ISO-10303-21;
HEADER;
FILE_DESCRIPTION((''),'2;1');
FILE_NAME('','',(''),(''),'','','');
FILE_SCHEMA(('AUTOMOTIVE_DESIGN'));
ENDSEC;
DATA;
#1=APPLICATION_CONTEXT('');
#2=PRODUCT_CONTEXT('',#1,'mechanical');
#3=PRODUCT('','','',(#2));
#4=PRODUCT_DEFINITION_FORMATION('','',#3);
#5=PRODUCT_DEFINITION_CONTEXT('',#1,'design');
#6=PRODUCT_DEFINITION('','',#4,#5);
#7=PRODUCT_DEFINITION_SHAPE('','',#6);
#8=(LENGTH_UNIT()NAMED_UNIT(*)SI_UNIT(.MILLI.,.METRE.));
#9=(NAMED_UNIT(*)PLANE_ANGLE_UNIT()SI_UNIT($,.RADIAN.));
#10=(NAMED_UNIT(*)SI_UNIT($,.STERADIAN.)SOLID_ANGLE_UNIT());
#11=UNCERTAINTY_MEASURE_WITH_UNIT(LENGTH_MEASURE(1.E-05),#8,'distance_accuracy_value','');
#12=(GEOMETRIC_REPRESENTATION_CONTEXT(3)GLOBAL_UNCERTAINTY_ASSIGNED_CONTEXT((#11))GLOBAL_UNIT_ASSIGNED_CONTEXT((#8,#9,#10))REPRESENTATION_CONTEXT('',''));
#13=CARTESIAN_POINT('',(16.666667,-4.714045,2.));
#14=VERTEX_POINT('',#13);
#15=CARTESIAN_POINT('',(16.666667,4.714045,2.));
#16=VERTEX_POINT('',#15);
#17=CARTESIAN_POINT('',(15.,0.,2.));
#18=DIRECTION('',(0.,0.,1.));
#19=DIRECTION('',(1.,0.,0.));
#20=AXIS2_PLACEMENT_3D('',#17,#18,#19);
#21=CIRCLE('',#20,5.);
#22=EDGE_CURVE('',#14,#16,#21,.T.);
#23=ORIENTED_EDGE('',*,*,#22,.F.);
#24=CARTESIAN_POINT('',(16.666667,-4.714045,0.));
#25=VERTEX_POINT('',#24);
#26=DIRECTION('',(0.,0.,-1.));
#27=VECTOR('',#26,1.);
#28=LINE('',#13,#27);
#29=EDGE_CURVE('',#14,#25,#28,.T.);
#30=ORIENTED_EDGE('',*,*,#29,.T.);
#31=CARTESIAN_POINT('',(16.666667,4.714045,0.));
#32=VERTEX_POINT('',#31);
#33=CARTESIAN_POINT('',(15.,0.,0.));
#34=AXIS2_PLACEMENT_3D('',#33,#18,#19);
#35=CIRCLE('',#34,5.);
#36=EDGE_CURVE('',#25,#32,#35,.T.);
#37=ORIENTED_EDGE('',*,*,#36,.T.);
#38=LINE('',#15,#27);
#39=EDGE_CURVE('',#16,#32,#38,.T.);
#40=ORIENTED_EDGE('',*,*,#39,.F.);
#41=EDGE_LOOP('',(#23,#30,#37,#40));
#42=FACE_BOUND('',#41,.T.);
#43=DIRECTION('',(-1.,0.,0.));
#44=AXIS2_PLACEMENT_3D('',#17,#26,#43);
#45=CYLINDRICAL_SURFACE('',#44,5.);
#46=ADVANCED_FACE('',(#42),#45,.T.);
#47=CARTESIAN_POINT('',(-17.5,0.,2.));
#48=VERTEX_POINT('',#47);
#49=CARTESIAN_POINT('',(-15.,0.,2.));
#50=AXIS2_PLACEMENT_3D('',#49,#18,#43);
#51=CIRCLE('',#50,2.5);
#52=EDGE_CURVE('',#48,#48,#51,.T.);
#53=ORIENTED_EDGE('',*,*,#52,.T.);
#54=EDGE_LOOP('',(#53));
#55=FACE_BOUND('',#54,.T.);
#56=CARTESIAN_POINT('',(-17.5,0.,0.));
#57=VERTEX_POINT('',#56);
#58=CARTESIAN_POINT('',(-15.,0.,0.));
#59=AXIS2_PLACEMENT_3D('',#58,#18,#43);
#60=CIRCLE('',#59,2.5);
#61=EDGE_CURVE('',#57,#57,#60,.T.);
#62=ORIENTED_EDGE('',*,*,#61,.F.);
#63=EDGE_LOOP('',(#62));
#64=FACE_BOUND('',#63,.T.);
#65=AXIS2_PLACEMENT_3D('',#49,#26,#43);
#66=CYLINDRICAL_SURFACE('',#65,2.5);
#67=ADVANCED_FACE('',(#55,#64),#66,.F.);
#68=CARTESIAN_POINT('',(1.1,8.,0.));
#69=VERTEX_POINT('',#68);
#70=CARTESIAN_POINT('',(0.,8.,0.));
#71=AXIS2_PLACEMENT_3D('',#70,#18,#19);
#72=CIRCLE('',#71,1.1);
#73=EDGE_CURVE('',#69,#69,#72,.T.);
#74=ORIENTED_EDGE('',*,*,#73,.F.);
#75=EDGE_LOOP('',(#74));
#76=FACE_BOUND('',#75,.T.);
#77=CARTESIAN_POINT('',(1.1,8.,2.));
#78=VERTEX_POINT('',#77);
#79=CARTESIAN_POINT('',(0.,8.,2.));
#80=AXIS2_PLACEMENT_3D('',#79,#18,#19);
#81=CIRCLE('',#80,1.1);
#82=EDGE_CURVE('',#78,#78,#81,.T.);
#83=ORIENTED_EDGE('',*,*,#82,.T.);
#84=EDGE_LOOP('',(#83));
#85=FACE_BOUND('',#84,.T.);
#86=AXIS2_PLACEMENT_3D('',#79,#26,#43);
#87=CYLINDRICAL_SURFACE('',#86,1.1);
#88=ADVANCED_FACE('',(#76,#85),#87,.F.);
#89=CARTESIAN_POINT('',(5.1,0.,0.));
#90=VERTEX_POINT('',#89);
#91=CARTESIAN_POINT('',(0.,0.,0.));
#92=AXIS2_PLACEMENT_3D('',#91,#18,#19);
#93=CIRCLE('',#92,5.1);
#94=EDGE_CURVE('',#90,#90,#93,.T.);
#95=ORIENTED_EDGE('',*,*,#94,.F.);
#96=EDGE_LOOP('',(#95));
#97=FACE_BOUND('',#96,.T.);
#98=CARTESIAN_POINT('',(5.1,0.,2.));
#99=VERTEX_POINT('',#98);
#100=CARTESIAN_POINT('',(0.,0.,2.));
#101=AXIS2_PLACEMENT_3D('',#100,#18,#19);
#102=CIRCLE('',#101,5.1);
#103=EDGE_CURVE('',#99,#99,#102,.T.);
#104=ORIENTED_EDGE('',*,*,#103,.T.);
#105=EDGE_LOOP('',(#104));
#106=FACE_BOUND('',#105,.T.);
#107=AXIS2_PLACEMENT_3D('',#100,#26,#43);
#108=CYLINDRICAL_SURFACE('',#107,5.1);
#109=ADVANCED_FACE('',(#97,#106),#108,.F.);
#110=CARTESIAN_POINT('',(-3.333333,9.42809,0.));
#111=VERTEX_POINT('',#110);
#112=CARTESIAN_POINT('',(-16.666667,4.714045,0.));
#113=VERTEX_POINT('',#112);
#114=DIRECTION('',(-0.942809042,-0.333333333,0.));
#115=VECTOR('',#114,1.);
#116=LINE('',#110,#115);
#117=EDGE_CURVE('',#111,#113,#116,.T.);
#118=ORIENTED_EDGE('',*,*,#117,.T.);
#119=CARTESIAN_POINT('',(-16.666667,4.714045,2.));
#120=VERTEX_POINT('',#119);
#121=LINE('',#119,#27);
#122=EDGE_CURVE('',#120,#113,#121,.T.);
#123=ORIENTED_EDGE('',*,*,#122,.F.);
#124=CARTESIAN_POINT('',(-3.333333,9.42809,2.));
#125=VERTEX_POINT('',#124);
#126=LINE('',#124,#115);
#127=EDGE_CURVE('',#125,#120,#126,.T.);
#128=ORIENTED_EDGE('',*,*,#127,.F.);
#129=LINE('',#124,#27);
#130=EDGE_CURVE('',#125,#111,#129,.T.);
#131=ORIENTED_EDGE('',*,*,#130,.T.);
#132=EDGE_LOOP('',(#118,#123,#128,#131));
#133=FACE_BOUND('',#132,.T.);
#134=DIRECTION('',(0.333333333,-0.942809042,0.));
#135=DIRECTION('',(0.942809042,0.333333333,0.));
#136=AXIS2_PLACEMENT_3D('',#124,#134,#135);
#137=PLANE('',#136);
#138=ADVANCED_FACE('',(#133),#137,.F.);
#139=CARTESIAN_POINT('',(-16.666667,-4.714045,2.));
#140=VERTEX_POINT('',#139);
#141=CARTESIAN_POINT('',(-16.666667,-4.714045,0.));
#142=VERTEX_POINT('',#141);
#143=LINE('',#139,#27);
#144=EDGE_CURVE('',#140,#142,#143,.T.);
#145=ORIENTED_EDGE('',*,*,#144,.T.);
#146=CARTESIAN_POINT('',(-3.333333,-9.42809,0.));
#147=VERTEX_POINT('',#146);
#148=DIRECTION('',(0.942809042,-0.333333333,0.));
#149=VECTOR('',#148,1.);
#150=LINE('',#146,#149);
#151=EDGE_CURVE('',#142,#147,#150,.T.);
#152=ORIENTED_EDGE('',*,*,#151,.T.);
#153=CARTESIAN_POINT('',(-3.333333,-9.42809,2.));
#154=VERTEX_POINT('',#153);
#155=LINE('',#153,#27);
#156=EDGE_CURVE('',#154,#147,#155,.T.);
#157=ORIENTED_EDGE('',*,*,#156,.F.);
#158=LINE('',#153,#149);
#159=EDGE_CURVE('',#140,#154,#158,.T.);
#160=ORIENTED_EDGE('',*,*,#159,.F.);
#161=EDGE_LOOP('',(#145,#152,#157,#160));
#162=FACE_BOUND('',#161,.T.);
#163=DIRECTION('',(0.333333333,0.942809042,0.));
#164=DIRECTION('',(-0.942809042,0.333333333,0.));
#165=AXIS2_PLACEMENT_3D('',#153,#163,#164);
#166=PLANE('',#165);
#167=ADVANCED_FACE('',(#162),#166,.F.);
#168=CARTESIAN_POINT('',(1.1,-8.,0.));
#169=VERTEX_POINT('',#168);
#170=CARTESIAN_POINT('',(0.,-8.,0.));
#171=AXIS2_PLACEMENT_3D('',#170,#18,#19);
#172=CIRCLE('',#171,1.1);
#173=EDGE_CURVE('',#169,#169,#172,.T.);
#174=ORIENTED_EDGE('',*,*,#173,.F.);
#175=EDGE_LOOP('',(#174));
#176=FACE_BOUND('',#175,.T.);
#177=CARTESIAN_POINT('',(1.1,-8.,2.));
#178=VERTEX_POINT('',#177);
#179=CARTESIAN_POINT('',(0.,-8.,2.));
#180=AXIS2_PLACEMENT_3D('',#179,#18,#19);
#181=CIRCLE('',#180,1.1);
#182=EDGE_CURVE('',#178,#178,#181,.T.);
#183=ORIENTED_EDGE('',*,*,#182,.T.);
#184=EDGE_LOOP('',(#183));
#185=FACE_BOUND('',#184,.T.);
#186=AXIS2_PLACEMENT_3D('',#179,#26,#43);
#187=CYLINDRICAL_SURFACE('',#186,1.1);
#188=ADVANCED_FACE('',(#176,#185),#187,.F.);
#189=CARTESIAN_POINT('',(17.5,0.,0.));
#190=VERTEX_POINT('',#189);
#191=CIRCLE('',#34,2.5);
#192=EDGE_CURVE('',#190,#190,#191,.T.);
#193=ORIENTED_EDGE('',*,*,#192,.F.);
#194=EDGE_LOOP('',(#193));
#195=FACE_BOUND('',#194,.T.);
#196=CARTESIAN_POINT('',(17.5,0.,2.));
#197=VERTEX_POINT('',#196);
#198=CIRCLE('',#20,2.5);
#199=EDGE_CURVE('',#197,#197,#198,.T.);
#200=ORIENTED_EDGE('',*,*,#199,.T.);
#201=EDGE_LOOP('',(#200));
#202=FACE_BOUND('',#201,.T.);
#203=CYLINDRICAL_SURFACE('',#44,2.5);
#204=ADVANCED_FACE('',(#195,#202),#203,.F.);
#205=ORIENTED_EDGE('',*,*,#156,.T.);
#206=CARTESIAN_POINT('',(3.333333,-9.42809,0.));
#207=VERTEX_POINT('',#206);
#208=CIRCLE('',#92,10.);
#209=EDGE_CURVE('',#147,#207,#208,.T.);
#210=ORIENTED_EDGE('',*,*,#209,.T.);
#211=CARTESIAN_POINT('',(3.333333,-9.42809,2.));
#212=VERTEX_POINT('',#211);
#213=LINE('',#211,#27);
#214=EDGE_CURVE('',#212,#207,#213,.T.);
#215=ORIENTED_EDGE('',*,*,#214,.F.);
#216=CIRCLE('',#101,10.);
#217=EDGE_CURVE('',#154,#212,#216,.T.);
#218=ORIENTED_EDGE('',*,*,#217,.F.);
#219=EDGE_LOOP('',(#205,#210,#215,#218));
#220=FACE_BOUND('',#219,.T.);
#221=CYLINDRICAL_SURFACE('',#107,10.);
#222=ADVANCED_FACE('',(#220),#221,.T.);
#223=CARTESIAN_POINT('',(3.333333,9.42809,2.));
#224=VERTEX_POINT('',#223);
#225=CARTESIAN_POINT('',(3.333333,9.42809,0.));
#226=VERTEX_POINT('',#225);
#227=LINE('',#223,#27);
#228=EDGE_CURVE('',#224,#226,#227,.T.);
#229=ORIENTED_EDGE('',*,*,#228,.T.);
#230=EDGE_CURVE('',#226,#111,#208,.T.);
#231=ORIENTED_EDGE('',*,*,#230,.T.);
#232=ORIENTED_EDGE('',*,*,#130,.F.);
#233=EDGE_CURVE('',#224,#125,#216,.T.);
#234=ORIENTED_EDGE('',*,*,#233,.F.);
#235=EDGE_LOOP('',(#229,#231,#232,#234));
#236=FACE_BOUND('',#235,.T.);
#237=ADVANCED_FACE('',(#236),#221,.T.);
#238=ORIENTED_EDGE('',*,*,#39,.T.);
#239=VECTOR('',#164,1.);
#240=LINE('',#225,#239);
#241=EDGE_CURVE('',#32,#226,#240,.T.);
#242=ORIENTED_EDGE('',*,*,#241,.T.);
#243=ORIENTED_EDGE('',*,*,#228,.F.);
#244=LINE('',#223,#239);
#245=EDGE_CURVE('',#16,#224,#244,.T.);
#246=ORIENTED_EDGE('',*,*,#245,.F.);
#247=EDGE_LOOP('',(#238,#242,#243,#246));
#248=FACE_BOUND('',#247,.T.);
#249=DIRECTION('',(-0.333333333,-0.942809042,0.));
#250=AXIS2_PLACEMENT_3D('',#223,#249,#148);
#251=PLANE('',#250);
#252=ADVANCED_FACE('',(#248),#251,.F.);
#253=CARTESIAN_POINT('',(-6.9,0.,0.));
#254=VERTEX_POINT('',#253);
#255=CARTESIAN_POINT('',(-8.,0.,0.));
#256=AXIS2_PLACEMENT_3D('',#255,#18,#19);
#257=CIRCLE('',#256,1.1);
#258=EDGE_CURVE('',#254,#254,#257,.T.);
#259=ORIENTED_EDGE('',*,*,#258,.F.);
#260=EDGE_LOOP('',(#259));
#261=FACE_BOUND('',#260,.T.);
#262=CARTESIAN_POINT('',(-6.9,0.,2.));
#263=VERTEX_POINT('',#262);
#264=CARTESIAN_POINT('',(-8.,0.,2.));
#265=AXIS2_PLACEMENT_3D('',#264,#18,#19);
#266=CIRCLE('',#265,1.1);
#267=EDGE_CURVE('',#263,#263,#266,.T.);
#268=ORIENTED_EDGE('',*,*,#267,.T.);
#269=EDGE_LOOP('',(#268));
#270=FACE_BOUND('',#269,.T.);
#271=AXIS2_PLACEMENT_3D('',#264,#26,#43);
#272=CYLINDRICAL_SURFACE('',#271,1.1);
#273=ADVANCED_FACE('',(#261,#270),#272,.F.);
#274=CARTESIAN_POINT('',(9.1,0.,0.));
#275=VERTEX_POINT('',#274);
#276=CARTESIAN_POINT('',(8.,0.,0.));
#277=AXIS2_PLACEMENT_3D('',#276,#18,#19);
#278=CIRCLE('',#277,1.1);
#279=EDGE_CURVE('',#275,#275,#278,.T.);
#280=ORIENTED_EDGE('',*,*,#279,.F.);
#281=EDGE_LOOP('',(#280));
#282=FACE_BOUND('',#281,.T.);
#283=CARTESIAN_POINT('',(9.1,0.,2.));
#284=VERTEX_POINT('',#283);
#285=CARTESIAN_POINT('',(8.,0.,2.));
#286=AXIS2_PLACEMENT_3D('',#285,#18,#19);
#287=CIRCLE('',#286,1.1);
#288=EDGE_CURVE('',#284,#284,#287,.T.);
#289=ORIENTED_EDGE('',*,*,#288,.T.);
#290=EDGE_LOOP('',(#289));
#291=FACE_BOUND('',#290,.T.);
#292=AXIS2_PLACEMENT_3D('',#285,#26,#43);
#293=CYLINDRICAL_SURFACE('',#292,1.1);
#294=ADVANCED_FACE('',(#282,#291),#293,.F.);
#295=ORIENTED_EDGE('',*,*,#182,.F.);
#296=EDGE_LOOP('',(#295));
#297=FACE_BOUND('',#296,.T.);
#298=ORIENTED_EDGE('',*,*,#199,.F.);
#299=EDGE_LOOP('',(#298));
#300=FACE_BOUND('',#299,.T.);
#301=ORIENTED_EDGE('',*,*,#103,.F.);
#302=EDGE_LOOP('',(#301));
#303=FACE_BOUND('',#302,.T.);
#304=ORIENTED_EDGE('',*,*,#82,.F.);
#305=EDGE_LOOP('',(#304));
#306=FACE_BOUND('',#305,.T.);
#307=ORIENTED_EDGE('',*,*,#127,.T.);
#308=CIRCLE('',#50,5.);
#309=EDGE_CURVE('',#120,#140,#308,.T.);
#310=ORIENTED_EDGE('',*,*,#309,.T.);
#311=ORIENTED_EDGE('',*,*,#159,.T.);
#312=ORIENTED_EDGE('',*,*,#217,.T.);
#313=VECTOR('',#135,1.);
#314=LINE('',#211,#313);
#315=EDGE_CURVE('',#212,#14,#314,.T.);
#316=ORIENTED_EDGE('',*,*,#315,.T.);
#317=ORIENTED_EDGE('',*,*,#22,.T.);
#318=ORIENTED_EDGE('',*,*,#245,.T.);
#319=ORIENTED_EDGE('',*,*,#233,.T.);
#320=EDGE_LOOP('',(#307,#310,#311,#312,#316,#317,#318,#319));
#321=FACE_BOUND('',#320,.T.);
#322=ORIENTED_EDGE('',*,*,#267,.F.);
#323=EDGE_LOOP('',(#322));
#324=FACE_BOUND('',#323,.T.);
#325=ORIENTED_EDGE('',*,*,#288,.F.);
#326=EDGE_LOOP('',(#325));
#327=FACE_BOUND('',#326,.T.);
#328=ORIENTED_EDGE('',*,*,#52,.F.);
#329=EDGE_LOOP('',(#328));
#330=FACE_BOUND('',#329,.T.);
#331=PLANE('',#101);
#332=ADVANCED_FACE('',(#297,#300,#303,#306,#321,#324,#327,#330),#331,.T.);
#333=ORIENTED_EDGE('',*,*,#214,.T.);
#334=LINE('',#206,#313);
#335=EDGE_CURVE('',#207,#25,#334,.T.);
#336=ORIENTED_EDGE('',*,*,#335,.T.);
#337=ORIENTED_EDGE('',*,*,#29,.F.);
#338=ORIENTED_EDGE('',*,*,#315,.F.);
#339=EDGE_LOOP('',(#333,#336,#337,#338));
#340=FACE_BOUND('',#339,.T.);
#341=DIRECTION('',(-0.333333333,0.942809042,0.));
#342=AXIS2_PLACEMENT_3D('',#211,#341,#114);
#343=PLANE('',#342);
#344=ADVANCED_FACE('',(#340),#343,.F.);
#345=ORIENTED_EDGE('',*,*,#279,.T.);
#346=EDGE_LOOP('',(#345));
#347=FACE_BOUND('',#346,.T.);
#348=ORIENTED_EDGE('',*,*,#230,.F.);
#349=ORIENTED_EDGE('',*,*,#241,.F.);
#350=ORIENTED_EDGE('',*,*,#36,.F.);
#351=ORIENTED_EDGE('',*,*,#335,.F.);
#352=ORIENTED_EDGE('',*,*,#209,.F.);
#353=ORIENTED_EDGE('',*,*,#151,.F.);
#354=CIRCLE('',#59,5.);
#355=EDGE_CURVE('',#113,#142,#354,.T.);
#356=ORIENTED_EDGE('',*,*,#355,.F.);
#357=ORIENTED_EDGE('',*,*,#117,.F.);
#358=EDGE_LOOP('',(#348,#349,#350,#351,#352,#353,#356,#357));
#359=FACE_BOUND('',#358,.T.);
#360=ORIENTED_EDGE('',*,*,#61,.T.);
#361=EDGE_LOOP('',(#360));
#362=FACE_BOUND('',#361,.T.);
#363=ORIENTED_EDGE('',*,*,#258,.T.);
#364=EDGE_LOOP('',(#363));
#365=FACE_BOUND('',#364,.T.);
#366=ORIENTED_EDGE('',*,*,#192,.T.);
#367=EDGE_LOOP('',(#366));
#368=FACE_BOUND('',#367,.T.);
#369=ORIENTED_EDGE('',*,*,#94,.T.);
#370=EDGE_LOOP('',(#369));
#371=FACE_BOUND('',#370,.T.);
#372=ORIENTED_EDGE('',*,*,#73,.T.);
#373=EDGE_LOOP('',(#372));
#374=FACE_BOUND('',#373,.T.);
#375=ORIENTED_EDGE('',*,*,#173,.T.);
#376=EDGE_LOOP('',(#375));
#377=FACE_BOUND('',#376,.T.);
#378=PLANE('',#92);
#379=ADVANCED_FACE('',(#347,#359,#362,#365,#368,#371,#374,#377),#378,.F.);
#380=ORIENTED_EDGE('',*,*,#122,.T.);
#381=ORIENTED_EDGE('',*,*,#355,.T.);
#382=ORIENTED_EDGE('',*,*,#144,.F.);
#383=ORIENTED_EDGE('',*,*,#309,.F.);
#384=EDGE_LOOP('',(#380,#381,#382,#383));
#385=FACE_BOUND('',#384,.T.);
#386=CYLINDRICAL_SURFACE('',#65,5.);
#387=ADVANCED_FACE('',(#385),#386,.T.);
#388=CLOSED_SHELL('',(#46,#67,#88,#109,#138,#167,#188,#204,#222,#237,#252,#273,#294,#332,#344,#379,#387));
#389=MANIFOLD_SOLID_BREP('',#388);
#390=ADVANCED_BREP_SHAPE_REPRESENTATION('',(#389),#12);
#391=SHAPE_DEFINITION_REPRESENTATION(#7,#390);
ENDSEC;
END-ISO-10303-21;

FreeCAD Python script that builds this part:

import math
import FreeCAD as App
import Part
import Sketcher

V = App.Vector

doc = App.newDocument("Part")
body = doc.addObject("PartDesign::Body", "Body")

sketch1 = doc.addObject("Sketcher::SketchObject", "Sketch")
body.addObject(sketch1)
sketch1.AttachmentSupport = (doc.XY_Plane, [""])
sketch1.MapMode = "FlatFace"
sketch1.addGeometry(Part.LineSegment(V(16.666667, 4.714045, 0), V(3.333333, 9.42809, 0)), False)
sketch1.addGeometry(Part.ArcOfCircle(Part.Circle(V(0, 0, 0), V(0, 0, 1), 10), math.radians(70.528779), math.radians(109.471221)), False)
sketch1.addGeometry(Part.LineSegment(V(-3.333333, 9.42809, 0), V(-16.666667, 4.714045, 0)), False)
sketch1.addGeometry(Part.ArcOfCircle(Part.Circle(V(-15, 0, 0), V(0, 0, 1), 5), math.radians(109.471221), math.radians(250.528779)), False)
sketch1.addGeometry(Part.LineSegment(V(-16.666667, -4.714045, 0), V(-3.333333, -9.42809, 0)), False)
sketch1.addGeometry(Part.ArcOfCircle(Part.Circle(V(0, 0, 0), V(0, 0, 1), 10), math.radians(-109.471221), math.radians(-70.528779)), False)
sketch1.addGeometry(Part.LineSegment(V(3.333333, -9.42809, 0), V(16.666667, -4.714045, 0)), False)
sketch1.addGeometry(Part.ArcOfCircle(Part.Circle(V(15, 0, 0), V(0, 0, 1), 5), math.radians(-70.528779), math.radians(70.528779)), False)
sketch1.addGeometry(Part.Circle(V(15, 0, 0), V(0, 0, 1), 2.5), False)
sketch1.addGeometry(Part.Circle(V(8, 0, 0), V(0, 0, 1), 1.1), False)
sketch1.addGeometry(Part.Circle(V(0, -8, 0), V(0, 0, 1), 1.1), False)
sketch1.addGeometry(Part.Circle(V(0, 0, 0), V(0, 0, 1), 5.1), False)
sketch1.addGeometry(Part.Circle(V(-8, 0, 0), V(0, 0, 1), 1.1), False)
sketch1.addGeometry(Part.Circle(V(-15, 0, 0), V(0, 0, 1), 2.5), False)
sketch1.addGeometry(Part.Circle(V(0, 8, 0), V(0, 0, 1), 1.1), False)
sketch1.addConstraint(Sketcher.Constraint("Tangent", 0, 2, 1, 1))
sketch1.addConstraint(Sketcher.Constraint("Tangent", 1, 2, 2, 1))
sketch1.addConstraint(Sketcher.Constraint("Tangent", 2, 2, 3, 1))
sketch1.addConstraint(Sketcher.Constraint("Tangent", 3, 2, 4, 1))
sketch1.addConstraint(Sketcher.Constraint("Tangent", 4, 2, 5, 1))
sketch1.addConstraint(Sketcher.Constraint("Tangent", 5, 2, 6, 1))
sketch1.addConstraint(Sketcher.Constraint("Tangent", 6, 2, 7, 1))
sketch1.addConstraint(Sketcher.Constraint("Tangent", 7, 2, 0, 1))
sketch1.addConstraint(Sketcher.Constraint("Coincident", 1, 3, -1, 1))
sketch1.addConstraint(Sketcher.Constraint("Coincident", 5, 3, -1, 1))
sketch1.addConstraint(Sketcher.Constraint("Coincident", 11, 3, -1, 1))
sketch1.addConstraint(Sketcher.Constraint("Coincident", 8, 3, 7, 3))
sketch1.addConstraint(Sketcher.Constraint("Coincident", 13, 3, 3, 3))
sketch1.addConstraint(Sketcher.Constraint("Equal", 1, 5))
sketch1.addConstraint(Sketcher.Constraint("Equal", 3, 7))
sketch1.addConstraint(Sketcher.Constraint("Equal", 9, 10))
sketch1.addConstraint(Sketcher.Constraint("Equal", 10, 12))
sketch1.addConstraint(Sketcher.Constraint("Equal", 8, 13))
sketch1.addConstraint(Sketcher.Constraint("Equal", 12, 14))
sketch1.addConstraint(Sketcher.Constraint("Symmetric", 3, 3, 7, 3, -1, 1))
sketch1.addConstraint(Sketcher.Constraint("Symmetric", 9, 3, 12, 3, -1, 1))
sketch1.addConstraint(Sketcher.Constraint("Symmetric", 10, 3, 14, 3, -1, 1))
sketch1.addConstraint(Sketcher.Constraint("PointOnObject", 3, 3, -1))
sketch1.addConstraint(Sketcher.Constraint("PointOnObject", 9, 3, -1))
sketch1.addConstraint(Sketcher.Constraint("PointOnObject", 10, 3, -2))
sketch1.addConstraint(Sketcher.Constraint("Diameter", 8, 5.0))
sketch1.addConstraint(Sketcher.Constraint("Radius", 1, 10.0))
sketch1.addConstraint(Sketcher.Constraint("Radius", 3, 5.0))
sketch1.addConstraint(Sketcher.Constraint("Diameter", 9, 2.2))
sketch1.addConstraint(Sketcher.Constraint("Diameter", 11, 10.2))
sketch1.addConstraint(Sketcher.Constraint("DistanceX", 3, 3, -1, 1, 15.0))
sketch1.addConstraint(Sketcher.Constraint("DistanceX", -1, 1, 9, 3, 8.0))
sketch1.addConstraint(Sketcher.Constraint("DistanceY", 10, 3, -1, 1, 8.0))
pad1 = doc.addObject("PartDesign::Pad", "Pad")
body.addObject(pad1)
pad1.Profile = sketch1
pad1.Length = 2

doc.recompute()
